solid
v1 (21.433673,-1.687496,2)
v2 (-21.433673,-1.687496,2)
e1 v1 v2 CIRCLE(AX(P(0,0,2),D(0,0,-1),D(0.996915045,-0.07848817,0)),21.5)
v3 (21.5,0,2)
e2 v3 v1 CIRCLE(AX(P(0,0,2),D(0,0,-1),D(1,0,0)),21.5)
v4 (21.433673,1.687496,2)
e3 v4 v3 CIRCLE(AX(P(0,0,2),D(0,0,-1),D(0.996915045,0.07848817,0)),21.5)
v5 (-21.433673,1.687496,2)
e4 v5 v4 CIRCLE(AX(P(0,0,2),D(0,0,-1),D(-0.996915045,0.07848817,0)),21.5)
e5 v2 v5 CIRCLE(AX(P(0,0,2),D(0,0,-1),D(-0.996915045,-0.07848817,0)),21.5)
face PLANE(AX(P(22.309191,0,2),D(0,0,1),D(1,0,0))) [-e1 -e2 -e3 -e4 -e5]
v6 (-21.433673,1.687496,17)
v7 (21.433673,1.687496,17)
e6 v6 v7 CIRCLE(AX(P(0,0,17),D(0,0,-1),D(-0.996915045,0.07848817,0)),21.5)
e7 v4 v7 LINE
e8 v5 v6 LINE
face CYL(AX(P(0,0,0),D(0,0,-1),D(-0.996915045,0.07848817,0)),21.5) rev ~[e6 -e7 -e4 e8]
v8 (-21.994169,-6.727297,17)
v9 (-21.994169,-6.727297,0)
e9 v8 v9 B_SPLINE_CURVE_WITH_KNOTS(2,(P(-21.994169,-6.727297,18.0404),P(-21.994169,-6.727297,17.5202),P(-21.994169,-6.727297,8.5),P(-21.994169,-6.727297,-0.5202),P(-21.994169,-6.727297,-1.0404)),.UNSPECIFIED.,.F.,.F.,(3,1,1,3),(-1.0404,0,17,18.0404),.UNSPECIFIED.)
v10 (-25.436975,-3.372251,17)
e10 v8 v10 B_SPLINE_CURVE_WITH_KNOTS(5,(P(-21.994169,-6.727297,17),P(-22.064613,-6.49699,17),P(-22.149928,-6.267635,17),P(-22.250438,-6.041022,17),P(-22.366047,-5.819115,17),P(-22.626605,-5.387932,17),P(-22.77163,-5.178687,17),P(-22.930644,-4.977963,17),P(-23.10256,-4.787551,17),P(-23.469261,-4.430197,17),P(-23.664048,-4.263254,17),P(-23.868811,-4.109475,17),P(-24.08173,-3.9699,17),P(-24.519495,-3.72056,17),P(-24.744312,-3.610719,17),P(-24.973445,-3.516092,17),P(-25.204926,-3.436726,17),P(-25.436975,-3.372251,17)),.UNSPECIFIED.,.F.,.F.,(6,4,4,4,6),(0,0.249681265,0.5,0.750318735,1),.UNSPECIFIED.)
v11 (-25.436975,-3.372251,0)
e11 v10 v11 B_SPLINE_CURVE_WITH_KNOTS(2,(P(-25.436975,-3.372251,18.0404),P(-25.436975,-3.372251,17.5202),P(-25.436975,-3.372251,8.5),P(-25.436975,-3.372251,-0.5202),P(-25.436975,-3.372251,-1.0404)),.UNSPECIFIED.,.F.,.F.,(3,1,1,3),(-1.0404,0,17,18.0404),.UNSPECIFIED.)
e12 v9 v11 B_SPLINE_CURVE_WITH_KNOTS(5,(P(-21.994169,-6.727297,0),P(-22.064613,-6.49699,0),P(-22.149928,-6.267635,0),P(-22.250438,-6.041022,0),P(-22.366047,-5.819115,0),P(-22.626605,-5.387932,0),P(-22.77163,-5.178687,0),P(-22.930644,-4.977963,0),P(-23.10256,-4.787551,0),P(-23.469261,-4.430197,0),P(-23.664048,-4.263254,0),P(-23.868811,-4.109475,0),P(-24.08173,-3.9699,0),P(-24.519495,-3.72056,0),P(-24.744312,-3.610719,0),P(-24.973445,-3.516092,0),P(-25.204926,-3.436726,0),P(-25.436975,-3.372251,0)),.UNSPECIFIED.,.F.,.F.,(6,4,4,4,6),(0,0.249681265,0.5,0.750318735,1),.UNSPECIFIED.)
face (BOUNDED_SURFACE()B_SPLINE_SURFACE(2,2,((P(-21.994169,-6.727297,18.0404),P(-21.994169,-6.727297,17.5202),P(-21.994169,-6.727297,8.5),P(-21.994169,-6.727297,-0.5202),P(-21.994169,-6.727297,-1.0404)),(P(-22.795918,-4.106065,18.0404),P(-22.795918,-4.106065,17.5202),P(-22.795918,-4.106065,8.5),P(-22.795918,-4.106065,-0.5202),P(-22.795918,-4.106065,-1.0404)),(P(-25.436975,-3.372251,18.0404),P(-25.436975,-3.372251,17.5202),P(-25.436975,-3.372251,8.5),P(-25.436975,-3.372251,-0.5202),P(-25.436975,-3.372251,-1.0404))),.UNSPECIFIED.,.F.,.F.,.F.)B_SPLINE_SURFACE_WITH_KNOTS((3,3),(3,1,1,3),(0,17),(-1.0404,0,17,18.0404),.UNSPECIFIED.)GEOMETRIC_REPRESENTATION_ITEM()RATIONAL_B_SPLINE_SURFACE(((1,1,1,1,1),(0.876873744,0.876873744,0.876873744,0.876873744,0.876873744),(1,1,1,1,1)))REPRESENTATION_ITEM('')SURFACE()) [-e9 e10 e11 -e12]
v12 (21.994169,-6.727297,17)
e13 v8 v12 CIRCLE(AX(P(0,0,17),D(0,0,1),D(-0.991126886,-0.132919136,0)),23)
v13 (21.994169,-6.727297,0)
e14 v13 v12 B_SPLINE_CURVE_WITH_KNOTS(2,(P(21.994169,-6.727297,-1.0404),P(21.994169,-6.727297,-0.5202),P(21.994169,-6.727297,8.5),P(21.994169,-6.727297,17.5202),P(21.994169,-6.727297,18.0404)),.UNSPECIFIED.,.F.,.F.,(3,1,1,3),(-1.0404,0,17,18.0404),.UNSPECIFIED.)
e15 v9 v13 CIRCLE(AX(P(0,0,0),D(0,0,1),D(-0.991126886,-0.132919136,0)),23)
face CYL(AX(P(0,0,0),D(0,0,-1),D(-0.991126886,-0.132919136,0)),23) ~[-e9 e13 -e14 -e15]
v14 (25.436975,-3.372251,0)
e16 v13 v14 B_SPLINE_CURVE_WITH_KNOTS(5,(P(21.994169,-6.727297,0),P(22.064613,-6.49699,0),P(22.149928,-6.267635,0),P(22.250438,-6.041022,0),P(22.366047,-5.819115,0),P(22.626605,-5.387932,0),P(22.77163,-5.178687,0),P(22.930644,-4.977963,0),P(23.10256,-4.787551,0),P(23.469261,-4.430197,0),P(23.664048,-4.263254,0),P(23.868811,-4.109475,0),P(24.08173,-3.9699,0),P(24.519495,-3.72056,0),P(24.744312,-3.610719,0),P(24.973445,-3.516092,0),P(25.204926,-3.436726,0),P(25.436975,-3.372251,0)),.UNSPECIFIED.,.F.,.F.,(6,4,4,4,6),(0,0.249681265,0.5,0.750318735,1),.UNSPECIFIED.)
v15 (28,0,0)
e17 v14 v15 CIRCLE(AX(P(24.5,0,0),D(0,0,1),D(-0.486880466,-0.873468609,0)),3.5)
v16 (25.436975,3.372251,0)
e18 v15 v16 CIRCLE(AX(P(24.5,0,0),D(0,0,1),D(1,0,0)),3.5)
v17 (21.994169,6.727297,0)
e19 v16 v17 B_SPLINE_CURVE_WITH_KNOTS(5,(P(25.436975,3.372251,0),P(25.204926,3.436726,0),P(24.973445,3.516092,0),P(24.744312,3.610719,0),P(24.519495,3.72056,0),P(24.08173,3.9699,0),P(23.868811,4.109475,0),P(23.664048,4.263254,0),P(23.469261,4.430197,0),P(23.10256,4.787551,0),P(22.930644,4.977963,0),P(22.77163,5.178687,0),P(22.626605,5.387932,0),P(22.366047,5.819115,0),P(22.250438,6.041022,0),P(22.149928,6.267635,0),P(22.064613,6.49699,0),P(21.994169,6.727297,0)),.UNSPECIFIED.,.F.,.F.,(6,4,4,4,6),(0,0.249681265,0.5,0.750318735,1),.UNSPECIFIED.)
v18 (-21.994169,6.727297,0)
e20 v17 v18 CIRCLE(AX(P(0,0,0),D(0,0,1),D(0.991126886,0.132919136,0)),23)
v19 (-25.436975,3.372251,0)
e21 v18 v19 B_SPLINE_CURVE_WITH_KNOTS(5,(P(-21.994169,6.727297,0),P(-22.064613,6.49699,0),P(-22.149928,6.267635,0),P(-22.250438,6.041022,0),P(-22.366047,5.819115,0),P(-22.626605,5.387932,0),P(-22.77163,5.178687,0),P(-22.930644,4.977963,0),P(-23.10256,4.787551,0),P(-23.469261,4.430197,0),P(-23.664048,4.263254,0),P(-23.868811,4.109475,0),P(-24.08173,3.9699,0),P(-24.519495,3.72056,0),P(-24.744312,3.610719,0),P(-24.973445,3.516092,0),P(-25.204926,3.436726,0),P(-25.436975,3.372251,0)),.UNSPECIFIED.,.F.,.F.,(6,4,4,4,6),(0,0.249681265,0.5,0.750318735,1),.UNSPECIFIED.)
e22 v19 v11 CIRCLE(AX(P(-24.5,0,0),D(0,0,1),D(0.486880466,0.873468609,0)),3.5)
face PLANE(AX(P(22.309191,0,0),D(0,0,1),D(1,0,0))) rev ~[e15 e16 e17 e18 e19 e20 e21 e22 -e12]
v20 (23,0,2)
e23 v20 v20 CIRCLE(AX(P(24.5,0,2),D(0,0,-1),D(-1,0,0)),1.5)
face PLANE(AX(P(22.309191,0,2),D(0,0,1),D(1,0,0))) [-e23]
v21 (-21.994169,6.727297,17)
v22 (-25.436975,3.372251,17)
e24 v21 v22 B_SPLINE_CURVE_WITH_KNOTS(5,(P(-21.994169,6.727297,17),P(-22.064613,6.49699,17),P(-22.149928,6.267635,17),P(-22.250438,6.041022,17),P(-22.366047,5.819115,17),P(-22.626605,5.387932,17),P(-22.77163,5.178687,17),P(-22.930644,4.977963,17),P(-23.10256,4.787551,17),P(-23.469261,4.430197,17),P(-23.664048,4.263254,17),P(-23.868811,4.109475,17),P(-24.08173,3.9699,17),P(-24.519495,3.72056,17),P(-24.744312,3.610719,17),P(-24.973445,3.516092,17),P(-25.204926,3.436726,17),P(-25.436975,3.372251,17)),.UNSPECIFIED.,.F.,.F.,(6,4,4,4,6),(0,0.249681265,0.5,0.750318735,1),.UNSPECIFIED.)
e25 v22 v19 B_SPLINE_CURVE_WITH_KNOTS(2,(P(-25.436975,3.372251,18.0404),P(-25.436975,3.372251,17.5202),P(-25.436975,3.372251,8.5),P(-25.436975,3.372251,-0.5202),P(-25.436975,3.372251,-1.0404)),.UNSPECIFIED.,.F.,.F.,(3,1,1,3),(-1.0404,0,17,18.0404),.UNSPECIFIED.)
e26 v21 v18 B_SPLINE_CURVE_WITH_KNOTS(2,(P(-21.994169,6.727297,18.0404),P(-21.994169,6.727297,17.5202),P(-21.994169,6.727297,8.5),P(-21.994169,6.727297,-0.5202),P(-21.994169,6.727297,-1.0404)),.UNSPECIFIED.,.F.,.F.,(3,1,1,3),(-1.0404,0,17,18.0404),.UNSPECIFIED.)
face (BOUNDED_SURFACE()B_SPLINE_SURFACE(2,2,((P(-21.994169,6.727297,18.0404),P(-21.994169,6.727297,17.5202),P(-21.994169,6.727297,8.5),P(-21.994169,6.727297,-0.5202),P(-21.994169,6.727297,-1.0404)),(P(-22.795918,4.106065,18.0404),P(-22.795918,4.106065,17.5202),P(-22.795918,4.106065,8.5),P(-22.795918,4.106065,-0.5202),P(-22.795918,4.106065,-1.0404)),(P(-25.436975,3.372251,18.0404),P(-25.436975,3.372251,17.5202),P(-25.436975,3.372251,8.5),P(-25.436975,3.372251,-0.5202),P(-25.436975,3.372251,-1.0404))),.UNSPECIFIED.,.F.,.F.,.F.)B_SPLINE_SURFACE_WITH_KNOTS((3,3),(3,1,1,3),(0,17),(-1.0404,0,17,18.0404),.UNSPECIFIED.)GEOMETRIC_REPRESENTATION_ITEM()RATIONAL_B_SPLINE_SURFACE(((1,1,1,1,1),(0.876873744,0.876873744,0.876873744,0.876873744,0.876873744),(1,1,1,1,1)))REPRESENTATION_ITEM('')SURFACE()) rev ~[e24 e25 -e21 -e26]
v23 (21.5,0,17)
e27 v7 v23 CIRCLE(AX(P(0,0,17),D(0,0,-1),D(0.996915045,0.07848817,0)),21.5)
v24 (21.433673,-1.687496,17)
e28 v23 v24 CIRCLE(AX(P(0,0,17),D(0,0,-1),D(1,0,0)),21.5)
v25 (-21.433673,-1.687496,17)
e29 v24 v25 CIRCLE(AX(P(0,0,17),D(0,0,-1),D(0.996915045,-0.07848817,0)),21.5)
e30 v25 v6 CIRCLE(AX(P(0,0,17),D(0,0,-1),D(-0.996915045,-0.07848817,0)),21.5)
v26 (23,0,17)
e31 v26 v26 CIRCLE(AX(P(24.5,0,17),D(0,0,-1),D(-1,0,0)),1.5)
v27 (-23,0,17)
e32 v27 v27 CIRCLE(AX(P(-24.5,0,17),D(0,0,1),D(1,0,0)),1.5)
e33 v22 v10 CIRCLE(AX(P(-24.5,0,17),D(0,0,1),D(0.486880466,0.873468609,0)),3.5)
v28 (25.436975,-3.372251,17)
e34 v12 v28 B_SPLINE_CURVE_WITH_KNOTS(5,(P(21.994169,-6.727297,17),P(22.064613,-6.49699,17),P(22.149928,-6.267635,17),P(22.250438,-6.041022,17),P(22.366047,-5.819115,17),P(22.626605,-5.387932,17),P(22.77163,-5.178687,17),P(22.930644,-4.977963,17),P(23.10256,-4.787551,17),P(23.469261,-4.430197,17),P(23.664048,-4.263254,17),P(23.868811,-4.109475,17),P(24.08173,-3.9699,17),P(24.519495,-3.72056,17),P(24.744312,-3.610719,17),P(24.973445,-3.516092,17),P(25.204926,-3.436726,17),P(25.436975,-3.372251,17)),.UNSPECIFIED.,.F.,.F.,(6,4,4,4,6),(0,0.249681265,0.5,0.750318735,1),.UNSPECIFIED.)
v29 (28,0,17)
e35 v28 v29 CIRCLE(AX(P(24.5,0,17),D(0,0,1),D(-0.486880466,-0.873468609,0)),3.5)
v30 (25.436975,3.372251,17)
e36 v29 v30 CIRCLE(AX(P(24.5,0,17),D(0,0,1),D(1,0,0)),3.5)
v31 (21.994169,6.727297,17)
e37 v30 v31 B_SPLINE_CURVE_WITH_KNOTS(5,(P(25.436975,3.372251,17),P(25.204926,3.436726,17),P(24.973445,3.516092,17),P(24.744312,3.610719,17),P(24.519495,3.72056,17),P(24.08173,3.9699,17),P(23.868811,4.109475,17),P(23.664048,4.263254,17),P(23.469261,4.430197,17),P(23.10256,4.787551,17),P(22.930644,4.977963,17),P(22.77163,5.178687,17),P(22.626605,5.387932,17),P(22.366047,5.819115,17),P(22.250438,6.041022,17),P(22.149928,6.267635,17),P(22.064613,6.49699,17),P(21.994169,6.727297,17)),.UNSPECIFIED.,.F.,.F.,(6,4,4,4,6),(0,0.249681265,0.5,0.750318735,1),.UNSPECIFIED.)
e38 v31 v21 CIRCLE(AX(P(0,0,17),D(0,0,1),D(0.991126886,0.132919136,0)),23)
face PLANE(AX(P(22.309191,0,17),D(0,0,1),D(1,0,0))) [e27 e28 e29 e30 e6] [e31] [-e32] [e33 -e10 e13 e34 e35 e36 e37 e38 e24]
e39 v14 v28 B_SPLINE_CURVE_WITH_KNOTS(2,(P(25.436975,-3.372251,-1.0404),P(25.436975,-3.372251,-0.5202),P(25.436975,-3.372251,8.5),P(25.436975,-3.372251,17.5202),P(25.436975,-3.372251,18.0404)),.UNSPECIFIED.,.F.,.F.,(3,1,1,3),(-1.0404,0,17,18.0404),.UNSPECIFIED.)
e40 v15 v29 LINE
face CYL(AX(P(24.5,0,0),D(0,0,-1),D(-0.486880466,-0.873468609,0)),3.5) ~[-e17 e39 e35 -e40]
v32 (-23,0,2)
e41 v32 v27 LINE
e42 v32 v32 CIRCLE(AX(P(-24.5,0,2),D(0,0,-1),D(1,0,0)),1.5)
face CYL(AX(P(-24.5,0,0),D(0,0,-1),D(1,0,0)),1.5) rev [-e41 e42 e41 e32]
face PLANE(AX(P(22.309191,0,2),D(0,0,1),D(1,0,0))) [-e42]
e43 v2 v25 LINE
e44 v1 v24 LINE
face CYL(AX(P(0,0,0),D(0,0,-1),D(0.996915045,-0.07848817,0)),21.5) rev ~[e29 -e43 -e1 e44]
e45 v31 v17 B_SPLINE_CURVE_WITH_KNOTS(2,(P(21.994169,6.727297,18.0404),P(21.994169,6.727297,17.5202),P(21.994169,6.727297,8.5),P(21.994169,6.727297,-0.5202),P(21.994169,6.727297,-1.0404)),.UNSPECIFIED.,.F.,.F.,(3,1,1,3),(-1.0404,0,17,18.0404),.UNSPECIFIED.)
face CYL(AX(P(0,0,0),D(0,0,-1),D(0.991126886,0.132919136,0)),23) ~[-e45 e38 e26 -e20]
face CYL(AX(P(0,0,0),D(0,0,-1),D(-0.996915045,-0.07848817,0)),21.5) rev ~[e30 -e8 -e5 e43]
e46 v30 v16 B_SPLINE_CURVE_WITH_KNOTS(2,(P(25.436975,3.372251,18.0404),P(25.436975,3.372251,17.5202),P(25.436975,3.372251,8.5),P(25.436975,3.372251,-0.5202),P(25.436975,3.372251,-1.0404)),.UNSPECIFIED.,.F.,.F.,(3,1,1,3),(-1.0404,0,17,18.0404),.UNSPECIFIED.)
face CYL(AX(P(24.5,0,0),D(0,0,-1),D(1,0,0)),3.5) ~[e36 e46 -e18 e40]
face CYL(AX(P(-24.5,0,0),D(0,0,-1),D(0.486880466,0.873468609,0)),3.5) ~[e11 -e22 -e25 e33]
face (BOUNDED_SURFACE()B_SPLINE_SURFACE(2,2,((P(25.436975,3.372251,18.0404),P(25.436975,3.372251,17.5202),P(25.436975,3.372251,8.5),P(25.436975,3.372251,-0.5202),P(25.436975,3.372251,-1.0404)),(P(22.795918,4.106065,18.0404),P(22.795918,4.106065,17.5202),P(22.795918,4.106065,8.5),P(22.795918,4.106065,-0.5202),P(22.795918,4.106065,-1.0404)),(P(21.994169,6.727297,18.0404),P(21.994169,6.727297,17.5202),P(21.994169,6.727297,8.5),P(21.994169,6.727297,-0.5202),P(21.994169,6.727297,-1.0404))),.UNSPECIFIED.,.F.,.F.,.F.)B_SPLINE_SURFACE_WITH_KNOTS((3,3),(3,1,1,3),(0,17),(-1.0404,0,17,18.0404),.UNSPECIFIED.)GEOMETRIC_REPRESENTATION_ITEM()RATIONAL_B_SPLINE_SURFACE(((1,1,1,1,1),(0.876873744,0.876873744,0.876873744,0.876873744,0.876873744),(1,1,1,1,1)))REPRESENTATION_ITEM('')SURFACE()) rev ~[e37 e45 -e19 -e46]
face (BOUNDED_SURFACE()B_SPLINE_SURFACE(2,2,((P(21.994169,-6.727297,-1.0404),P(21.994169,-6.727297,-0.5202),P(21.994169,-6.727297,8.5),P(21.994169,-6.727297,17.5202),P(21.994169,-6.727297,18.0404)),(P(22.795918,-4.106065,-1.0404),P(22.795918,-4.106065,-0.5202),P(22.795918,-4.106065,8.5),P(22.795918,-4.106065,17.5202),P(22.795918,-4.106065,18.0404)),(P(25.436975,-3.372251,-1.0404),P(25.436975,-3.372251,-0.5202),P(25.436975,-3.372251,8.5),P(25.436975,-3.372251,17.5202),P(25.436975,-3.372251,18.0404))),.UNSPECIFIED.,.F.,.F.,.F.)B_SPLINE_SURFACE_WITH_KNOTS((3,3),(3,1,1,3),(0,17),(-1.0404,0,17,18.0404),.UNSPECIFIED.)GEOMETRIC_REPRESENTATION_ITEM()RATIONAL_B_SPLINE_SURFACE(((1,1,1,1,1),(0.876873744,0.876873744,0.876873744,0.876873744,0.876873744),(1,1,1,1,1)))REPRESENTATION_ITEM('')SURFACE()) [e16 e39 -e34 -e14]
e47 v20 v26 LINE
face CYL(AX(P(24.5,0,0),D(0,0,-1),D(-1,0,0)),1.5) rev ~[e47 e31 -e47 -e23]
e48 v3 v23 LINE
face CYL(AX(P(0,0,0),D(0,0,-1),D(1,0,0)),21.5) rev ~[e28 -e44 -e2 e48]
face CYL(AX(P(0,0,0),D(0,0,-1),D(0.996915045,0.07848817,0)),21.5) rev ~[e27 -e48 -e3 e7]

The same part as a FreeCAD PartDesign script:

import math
import FreeCAD as App
import Part
import Sketcher
from FreeCAD import Vector
Q = App.Units.Quantity


def edges_at(feature, points):
    """Names of the edges that pass closest to the given points."""
    edges = feature.Shape.Edges
    near = lambda p: min(range(len(edges)), key=lambda i: edges[i].distToShape(Part.Vertex(*p))[0])
    return sorted({f"Edge{near(p) + 1}" for p in points})

doc = App.newDocument("Part")
body = doc.addObject("PartDesign::Body", "Body")

# Sketch on XY plane
sketch1 = body.newObject("Sketcher::SketchObject", "Sketch")
sketch1.AttachmentSupport = (doc.getObject("XY_Plane"), [""])
sketch1.MapMode = "FlatFace"
sketch1.addGeometry(Part.ArcOfCircle(Part.Circle(Vector(0, 0, 0), Vector(0, 0, 1), 23), math.radians(-172), math.radians(-8)), False)
sketch1.addGeometry(Part.ArcOfCircle(Part.Circle(Vector(24.5, 0, 0), Vector(0, 0, 1), 3.5), math.radians(-119), math.radians(0)), False)
sketch1.addGeometry(Part.ArcOfCircle(Part.Circle(Vector(24.5, 0, 0), Vector(0, 0, 1), 3.5), math.radians(0), math.radians(119)), False)
sketch1.addGeometry(Part.ArcOfCircle(Part.Circle(Vector(0, 0, 0), Vector(0, 0, 1), 23), math.radians(8), math.radians(172)), False)
sketch1.addGeometry(Part.ArcOfCircle(Part.Circle(Vector(-24.5, 0, 0), Vector(0, 0, 1), 3.5), math.radians(61), math.radians(299)), False)
sketch1.addGeometry(Part.Circle(Vector(-24.5, 0, 0), Vector(0, 0, 1), 1.5), False)
sketch1.addGeometry(Part.ArcOfCircle(Part.Circle(Vector(0, 0, 0), Vector(0, 0, 1), 21.5), math.radians(0), math.radians(4.5)), False)
sketch1.addGeometry(Part.ArcOfCircle(Part.Circle(Vector(0, 0, 0), Vector(0, 0, 1), 21.5), math.radians(-4.5), math.radians(0)), False)
sketch1.addGeometry(Part.ArcOfCircle(Part.Circle(Vector(0, 0, 0), Vector(0, 0, 1), 21.5), math.radians(-175), math.radians(-5)), False)
sketch1.addGeometry(Part.ArcOfCircle(Part.Circle(Vector(0, 0, 0), Vector(0, 0, 1), 21.5), math.radians(175.5), math.radians(184.5)), False)
sketch1.addGeometry(Part.ArcOfCircle(Part.Circle(Vector(0, 0, 0), Vector(0, 0, 1), 21.5), math.radians(5), math.radians(175)), False)
sketch1.addGeometry(Part.Circle(Vector(24.5, 0, 0), Vector(0, 0, 1), 1.5), False)
sketch1.addConstraint(Sketcher.Constraint("Coincident", 0, 2, 1, 1))
sketch1.addConstraint(Sketcher.Constraint("Tangent", 1, 2, 2, 1))
sketch1.addConstraint(Sketcher.Constraint("Coincident", 2, 2, 3, 1))
sketch1.addConstraint(Sketcher.Constraint("Coincident", 3, 2, 4, 1))
sketch1.addConstraint(Sketcher.Constraint("Coincident", 4, 2, 0, 1))
sketch1.addConstraint(Sketcher.Constraint("Tangent", 6, 1, 7, 2))
sketch1.addConstraint(Sketcher.Constraint("Tangent", 7, 1, 8, 2))
sketch1.addConstraint(Sketcher.Constraint("Tangent", 8, 1, 9, 2))
sketch1.addConstraint(Sketcher.Constraint("Tangent", 9, 1, 10, 2))
sketch1.addConstraint(Sketcher.Constraint("Tangent", 10, 1, 6, 2))
sketch1.addConstraint(Sketcher.Constraint("Coincident", 0, 3, -1, 1))
sketch1.addConstraint(Sketcher.Constraint("Coincident", 3, 3, -1, 1))
sketch1.addConstraint(Sketcher.Constraint("Coincident", 6, 3, -1, 1))
sketch1.addConstraint(Sketcher.Constraint("Coincident", 8, 3, -1, 1))
sketch1.addConstraint(Sketcher.Constraint("Coincident", 5, 3, 4, 3))
sketch1.addConstraint(Sketcher.Constraint("Coincident", 11, 3, 1, 3))
sketch1.addConstraint(Sketcher.Constraint("Equal", 1, 2))
sketch1.addConstraint(Sketcher.Constraint("Equal", 0, 3))
sketch1.addConstraint(Sketcher.Constraint("Equal", 2, 4))
sketch1.addConstraint(Sketcher.Constraint("Equal", 5, 11))
sketch1.addConstraint(Sketcher.Constraint("Symmetric", 1, 3, 4, 3, -1, 1))
sketch1.addConstraint(Sketcher.Constraint("PointOnObject", 1, 3, -1))
sketch1.addConstraint(Sketcher.Constraint("PointOnObject", 1, 2, -1))
sketch1.addConstraint(Sketcher.Constraint("PointOnObject", 6, 1, -1))
sketch1.addConstraint(Sketcher.Constraint("Horizontal", 7, 1, 8, 1))
sketch1.addConstraint(Sketcher.Constraint("Horizontal", 9, 1, 10, 1))
sketch1.addConstraint(Sketcher.Constraint("Vertical", 8, 1, 9, 1))
sketch1.addConstraint(Sketcher.Constraint("Diameter", 5, Q("3 mm")))
sketch1.addConstraint(Sketcher.Constraint("Radius", 0, Q("23 mm")))
sketch1.addConstraint(Sketcher.Constraint("Radius", 1, Q("3.5 mm")))
sketch1.addConstraint(Sketcher.Constraint("Radius", 6, Q("21.5 mm")))
sketch1.addConstraint(Sketcher.Constraint("DistanceX", -1, 1, 1, 2, Q("28 mm")))
sketch1.addConstraint(Sketcher.Constraint("DistanceY", 8, 1, 9, 1, Q("3.374991 mm")))
pad1 = body.newObject("PartDesign::Pad", "Pad")
pad1.Profile = sketch1
pad1.Length = 17

# Sketch on XY plane
sketch2 = body.newObject("Sketcher::SketchObject", "Sketch001")
sketch2.AttachmentSupport = (doc.getObject("XY_Plane"), [""])
sketch2.MapMode = "FlatFace"
sketch2.addGeometry(Part.ArcOfCircle(Part.Circle(Vector(0, 0, 0), Vector(0, 0, 1), 23), math.radians(-172), math.radians(-8)), False)
sketch2.addGeometry(Part.ArcOfCircle(Part.Circle(Vector(24.5, 0, 0), Vector(0, 0, 1), 3.5), math.radians(-119), math.radians(0)), False)
sketch2.addGeometry(Part.ArcOfCircle(Part.Circle(Vector(24.5, 0, 0), Vector(0, 0, 1), 3.5), math.radians(0), math.radians(119)), False)
sketch2.addGeometry(Part.ArcOfCircle(Part.Circle(Vector(0, 0, 0), Vector(0, 0, 1), 23), math.radians(8), math.radians(172)), False)
sketch2.addGeometry(Part.ArcOfCircle(Part.Circle(Vector(-24.5, 0, 0), Vector(0, 0, 1), 3.5), math.radians(61), math.radians(299)), False)
sketch2.addConstraint(Sketcher.Constraint("Coincident", 0, 2, 1, 1))
sketch2.addConstraint(Sketcher.Constraint("Tangent", 1, 2, 2, 1))
sketch2.addConstraint(Sketcher.Constraint("Coincident", 2, 2, 3, 1))
sketch2.addConstraint(Sketcher.Constraint("Coincident", 3, 2, 4, 1))
sketch2.addConstraint(Sketcher.Constraint("Coincident", 4, 2, 0, 1))
sketch2.addConstraint(Sketcher.Constraint("Coincident", 0, 3, -1, 1))
sketch2.addConstraint(Sketcher.Constraint("Coincident", 3, 3, -1, 1))
sketch2.addConstraint(Sketcher.Constraint("Equal", 1, 2))
sketch2.addConstraint(Sketcher.Constraint("Equal", 0, 3))
sketch2.addConstraint(Sketcher.Constraint("Equal", 2, 4))
sketch2.addConstraint(Sketcher.Constraint("Symmetric", 1, 3, 4, 3, -1, 1))
sketch2.addConstraint(Sketcher.Constraint("PointOnObject", 1, 3, -1))
sketch2.addConstraint(Sketcher.Constraint("PointOnObject", 1, 2, -1))
sketch2.addConstraint(Sketcher.Constraint("Radius", 0, Q("23 mm")))
sketch2.addConstraint(Sketcher.Constraint("Radius", 1, Q("3.5 mm")))
sketch2.addConstraint(Sketcher.Constraint("DistanceX", -1, 1, 1, 2, Q("28 mm")))
pad2 = body.newObject("PartDesign::Pad", "Pad001")
pad2.Profile = sketch2
pad2.Length = 2
doc.recompute()

fillet = body.newObject("PartDesign::Fillet", "Fillet")
fillet.Base = (pad2, edges_at(pad2, [
    (-22.796, 3.057, 8.5),
    (-22.796, -3.057, 8.5),
    (22.796, -3.057, 8.5),
    (22.796, 3.057, 8.5),
]))
fillet.Radius = 5

doc.recompute()
